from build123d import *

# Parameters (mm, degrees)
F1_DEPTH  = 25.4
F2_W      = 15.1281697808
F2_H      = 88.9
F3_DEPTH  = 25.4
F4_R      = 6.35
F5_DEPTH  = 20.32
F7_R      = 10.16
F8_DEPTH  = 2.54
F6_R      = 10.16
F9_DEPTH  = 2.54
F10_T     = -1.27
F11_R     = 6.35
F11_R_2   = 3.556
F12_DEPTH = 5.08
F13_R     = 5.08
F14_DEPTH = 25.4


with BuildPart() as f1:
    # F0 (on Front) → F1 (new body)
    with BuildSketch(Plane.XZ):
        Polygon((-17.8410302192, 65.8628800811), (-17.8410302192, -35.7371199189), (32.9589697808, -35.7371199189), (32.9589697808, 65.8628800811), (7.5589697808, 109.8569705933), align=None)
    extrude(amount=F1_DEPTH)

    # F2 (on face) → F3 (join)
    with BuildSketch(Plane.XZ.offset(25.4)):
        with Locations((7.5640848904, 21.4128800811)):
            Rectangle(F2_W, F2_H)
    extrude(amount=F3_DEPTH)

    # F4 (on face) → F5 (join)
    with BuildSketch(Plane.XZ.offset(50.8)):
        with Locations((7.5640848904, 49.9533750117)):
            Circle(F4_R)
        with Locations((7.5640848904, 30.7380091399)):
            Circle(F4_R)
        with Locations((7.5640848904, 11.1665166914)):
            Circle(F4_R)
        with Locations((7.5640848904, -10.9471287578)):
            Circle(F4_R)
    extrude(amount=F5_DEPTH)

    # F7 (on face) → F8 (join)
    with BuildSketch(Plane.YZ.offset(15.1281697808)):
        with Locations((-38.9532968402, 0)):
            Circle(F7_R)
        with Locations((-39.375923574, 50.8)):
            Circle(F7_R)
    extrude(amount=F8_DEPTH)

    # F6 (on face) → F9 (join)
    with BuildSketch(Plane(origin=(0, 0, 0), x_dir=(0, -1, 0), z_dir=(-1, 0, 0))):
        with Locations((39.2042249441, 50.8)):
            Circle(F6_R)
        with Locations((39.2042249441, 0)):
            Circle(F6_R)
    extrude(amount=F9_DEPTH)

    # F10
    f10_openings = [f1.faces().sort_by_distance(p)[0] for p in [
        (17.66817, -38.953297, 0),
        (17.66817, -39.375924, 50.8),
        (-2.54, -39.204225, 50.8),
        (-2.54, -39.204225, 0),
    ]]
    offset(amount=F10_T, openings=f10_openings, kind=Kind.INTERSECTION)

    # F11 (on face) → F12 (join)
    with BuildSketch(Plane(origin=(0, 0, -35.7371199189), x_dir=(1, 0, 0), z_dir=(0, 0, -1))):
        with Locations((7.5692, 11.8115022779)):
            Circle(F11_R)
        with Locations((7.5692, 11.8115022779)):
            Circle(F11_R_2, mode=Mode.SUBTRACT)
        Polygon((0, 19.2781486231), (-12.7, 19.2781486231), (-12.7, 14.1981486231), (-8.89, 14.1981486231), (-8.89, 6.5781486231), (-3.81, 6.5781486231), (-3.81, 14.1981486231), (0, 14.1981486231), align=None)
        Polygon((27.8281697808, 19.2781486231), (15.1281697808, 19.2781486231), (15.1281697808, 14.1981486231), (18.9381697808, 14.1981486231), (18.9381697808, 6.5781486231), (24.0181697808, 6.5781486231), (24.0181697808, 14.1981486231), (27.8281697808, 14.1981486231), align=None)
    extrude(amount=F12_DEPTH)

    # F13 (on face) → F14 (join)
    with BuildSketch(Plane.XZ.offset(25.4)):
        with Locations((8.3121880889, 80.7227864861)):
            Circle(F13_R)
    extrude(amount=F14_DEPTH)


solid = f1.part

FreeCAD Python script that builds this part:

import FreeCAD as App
import Part
import Sketcher

V = App.Vector
Q = App.Units.Quantity


def faces_at(feature, points):
    """Names of the faces that lie closest to the given points."""
    faces = feature.Shape.Faces
    near = lambda p: min(range(len(faces)), key=lambda i: faces[i].distToShape(Part.Vertex(*p))[0])
    return sorted({f"Face{near(p) + 1}" for p in points})


def add_polygon(sketch, points):
    """Adds a closed chain of lines whose ends are joined by coincident constraints."""
    first, n = sketch.GeometryCount, len(points)
    for a, b in zip(points, points[1:] + points[:1]):
        sketch.addGeometry(Part.LineSegment(App.Vector(*a, 0), App.Vector(*b, 0)), False)
    for i in range(n):
        sketch.addConstraint(Sketcher.Constraint("Coincident", first + i, 2, first + (i + 1) % n, 1))

doc = App.newDocument("Part")
body = doc.addObject("PartDesign::Body", "Body")

# Sketch on XZ plane
sketch1 = body.newObject("Sketcher::SketchObject", "Sketch")
sketch1.AttachmentSupport = (doc.getObject("XZ_Plane"), [""])
sketch1.MapMode = "FlatFace"
add_polygon(sketch1, [(-18, 66), (-18, -36), (33, -36), (33, 66), (8, 110)])  # lines 0-4
sketch1.addConstraint([
    Sketcher.Constraint("Vertical", 0),
    Sketcher.Constraint("Horizontal", 1),
    Sketcher.Constraint("Vertical", 2),
    Sketcher.Constraint("Horizontal", 2, 2, 4, 2),
    Sketcher.Constraint("Equal", 3, 4),
    Sketcher.Constraint("DistanceX", 1, 1, 1, 2, Q("2 in")),
    Sketcher.Constraint("DistanceY", 0, 2, 0, 1, Q("4 in")),
    Sketcher.Constraint("Distance", 3, Q("2 in")),
    Sketcher.Constraint("DistanceX", 0, 2, -1, 1, 17.84103),
    Sketcher.Constraint("DistanceY", 0, 2, -1, 1, 35.73712),
])
pad1 = body.newObject("PartDesign::Pad", "Pad")
pad1.Profile = sketch1
pad1.Length = Q("1 in")

# Sketch on XZ plane
sketch2 = body.newObject("Sketcher::SketchObject", "Sketch001")
sketch2.AttachmentSupport = (doc.getObject("XZ_Plane"), [""])
sketch2.MapMode = "FlatFace"
sketch2.AttachmentOffset = App.Placement(V(0, 0, 1 * 25.4), App.Rotation())
add_polygon(sketch2, [(0, 66), (0, -23), (15, -23), (15, 66)])  # lines 0-3
sketch2.addConstraint([
    Sketcher.Constraint("Vertical", 0),
    Sketcher.Constraint("Horizontal", 1),
    Sketcher.Constraint("Vertical", 2),
    Sketcher.Constraint("Horizontal", 3),
    Sketcher.Constraint("PointOnObject", 0, 2, -2),
    Sketcher.Constraint("DistanceY", 0, 2, 0, 1, Q("3.5 in")),
    Sketcher.Constraint("DistanceX", 1, 1, 1, 2, 15.12817),
    Sketcher.Constraint("DistanceY", 0, 2, -1, 1, 23.03712),
])
pad2 = body.newObject("PartDesign::Pad", "Pad001")
pad2.Profile = sketch2
pad2.Length = Q("1 in")

# Sketch on XZ plane
sketch3 = body.newObject("Sketcher::SketchObject", "Sketch002")
sketch3.AttachmentSupport = (doc.getObject("XZ_Plane"), [""])
sketch3.MapMode = "FlatFace"
sketch3.AttachmentOffset = App.Placement(V(0, 0, 2 * 25.4), App.Rotation())
sketch3.addGeometry([
    Part.Circle(V(8, 50, 0), V(0, 0, 1), 6),
    Part.Circle(V(8, 31, 0), V(0, 0, 1), 6),
    Part.Circle(V(8, 11, 0), V(0, 0, 1), 6),
    Part.Circle(V(8, -11, 0), V(0, 0, 1), 6),
], False)
sketch3.addConstraint([
    Sketcher.Constraint("Equal", 0, 1),
    Sketcher.Constraint("Equal", 1, 2),
    Sketcher.Constraint("Equal", 2, 3),
    Sketcher.Constraint("Vertical", 0, 3, 1, 3),
    Sketcher.Constraint("Vertical", 1, 3, 2, 3),
    Sketcher.Constraint("Vertical", 2, 3, 3, 3),
    Sketcher.Constraint("Diameter", 0, Q("0.5 in")),
    Sketcher.Constraint("DistanceY", -1, 1, 1, 3, 30.738009),
    Sketcher.Constraint("DistanceY", 3, 3, -1, 1, 10.947129),
    Sketcher.Constraint("DistanceY", 2, 3, 0, 3, 38.786858),
    Sketcher.Constraint("DistanceX", -1, 1, 0, 3, 7.564085),
    Sketcher.Constraint("DistanceY", -1, 1, 0, 3, 49.953375),
])
pad3 = body.newObject("PartDesign::Pad", "Pad002")
pad3.Profile = sketch3
pad3.Length = Q("0.8 in")

# Sketch on YZ plane
sketch4 = body.newObject("Sketcher::SketchObject", "Sketch003")
sketch4.AttachmentSupport = (doc.getObject("YZ_Plane"), [""])
sketch4.MapMode = "FlatFace"
sketch4.AttachmentOffset = App.Placement(V(0, 0, 15.12817), App.Rotation())
sketch4.addGeometry([
    Part.Circle(V(-39, 0, 0), V(0, 0, 1), 10),
    Part.Circle(V(-39, 51, 0), V(0, 0, 1), 10),
], False)
sketch4.addConstraint([
    Sketcher.Constraint("Equal", 0, 1),
    Sketcher.Constraint("PointOnObject", 0, 3, -1),
    Sketcher.Constraint("Diameter", 0, Q("0.8 in")),
    Sketcher.Constraint("DistanceY", -1, 1, 1, 3, Q("2 in")),
    Sketcher.Constraint("DistanceX", 0, 3, -1, 1, 38.953297),
    Sketcher.Constraint("DistanceX", 1, 3, -1, 1, 39.375924),
])
pad4 = body.newObject("PartDesign::Pad", "Pad003")
pad4.Profile = sketch4
pad4.Length = Q("0.1 in")

# Sketch on YZ plane
sketch5 = body.newObject("Sketcher::SketchObject", "Sketch004")
sketch5.AttachmentSupport = (doc.getObject("YZ_Plane"), [""])
sketch5.MapMode = "FlatFace"
sketch5.addGeometry([
    Part.Circle(V(-39, 51, 0), V(0, 0, 1), 10),
    Part.Circle(V(-39, 0, 0), V(0, 0, 1), 10),
], False)
sketch5.addConstraint([
    Sketcher.Constraint("Equal", 0, 1),
    Sketcher.Constraint("PointOnObject", 1, 3, -1),
    Sketcher.Constraint("Vertical", 0, 3, 1, 3),
    Sketcher.Constraint("Diameter", 0, Q("0.8 in")),
    Sketcher.Constraint("DistanceY", -1, 1, 0, 3, Q("2 in")),
    Sketcher.Constraint("DistanceX", 0, 3, -1, 1, 39.204225),
])
pad5 = body.newObject("PartDesign::Pad", "Pad004")
pad5.Profile = sketch5
pad5.Length = Q("0.1 in")
pad5.Reversed = True
doc.recompute()

thickness = body.newObject("PartDesign::Thickness", "Thickness")
thickness.Base = (pad5, faces_at(pad5, [
    (17.668, -38.953, 0),
    (17.668, -39.376, 50.8),
    (-2.54, -39.204, 50.8),
    (-2.54, -39.204, 0),
]))
thickness.Value = Q("0.05 in")
thickness.Reversed = True
thickness.Join = "Intersection"

# Sketch on XY plane
sketch6 = body.newObject("Sketcher::SketchObject", "Sketch005")
sketch6.AttachmentSupport = (doc.getObject("XY_Plane"), [""])
sketch6.MapMode = "FlatFace"
sketch6.AttachmentOffset = App.Placement(V(0, 0, -35.73712), App.Rotation())
sketch6.addGeometry(Part.Circle(V(7.6, -11.8, 0), V(0, 0, 1), 6.3), False)  # 0
sketch6.addGeometry(Part.Circle(V(7.6, -11.8, 0), V(0, 0, 1), 3.6), False)  # 1
add_polygon(sketch6, [(0, -19.3), (-12.7, -19.3), (-12.7, -14.2), (-8.9, -14.2), (-8.9, -6.6), (-3.8, -6.6), (-3.8, -14.2), (0, -14.2)])  # lines 2-9
add_polygon(sketch6, [(27.8, -19.3), (15.1, -19.3), (15.1, -14.2), (18.9, -14.2), (18.9, -6.6), (24, -6.6), (24, -14.2), (27.8, -14.2)])  # lines 10-17
sketch6.addConstraint([
    Sketcher.Constraint("Horizontal", 2),
    Sketcher.Constraint("Vertical", 3),
    Sketcher.Constraint("Horizontal", 4),
    Sketcher.Constraint("Vertical", 5),
    Sketcher.Constraint("Horizontal", 6),
    Sketcher.Constraint("Vertical", 7),
    Sketcher.Constraint("Horizontal", 8),
    Sketcher.Constraint("Vertical", 9),
    Sketcher.Constraint("Horizontal", 10),
    Sketcher.Constraint("Vertical", 11),
    Sketcher.Constraint("Horizontal", 12),
    Sketcher.Constraint("Vertical", 13),
    Sketcher.Constraint("Horizontal", 14),
    Sketcher.Constraint("Vertical", 15),
    Sketcher.Constraint("Horizontal", 16),
    Sketcher.Constraint("Vertical", 17),
    Sketcher.Constraint("Coincident", 1, 3, 0, 3),
    Sketcher.Constraint("PointOnObject", 8, 2, -2),
    Sketcher.Constraint("Horizontal", 4, 2, 7, 2),
    Sketcher.Constraint("Horizontal", 9, 2, 10, 2),
    Sketcher.Constraint("Horizontal", 8, 2, 11, 2),
    Sketcher.Constraint("Horizontal", 6, 2, 13, 2),
    Sketcher.Constraint("Horizontal", 12, 2, 15, 2),
    Sketcher.Constraint("Equal", 4, 8),
    Sketcher.Constraint("Equal", 2, 10),
    Sketcher.Constraint("Equal", 8, 12),
    Sketcher.Constraint("Equal", 6, 14),
    Sketcher.Constraint("Equal", 14, 3),
    Sketcher.Constraint("Diameter", 0, Q("0.5 in")),
    Sketcher.Constraint("Diameter", 1, Q("0.28 in")),
    Sketcher.Constraint("DistanceX", 2, 2, 2, 1, Q("0.5 in")),
    Sketcher.Constraint("DistanceX", 6, 1, 6, 2, Q("0.2 in")),
    Sketcher.Constraint("DistanceY", 5, 1, 5, 2, Q("0.3 in")),
    Sketcher.Constraint("DistanceX", -1, 1, 0, 3, Q("0.298 in")),
    Sketcher.Constraint("DistanceY", 2, 2, -1, 1, 19.278149),
    Sketcher.Constraint("DistanceX", -1, 1, 10, 2, 15.12817),
    Sketcher.Constraint("DistanceY", 0, 3, -1, 1, 11.811502),
])
pad6 = body.newObject("PartDesign::Pad", "Pad005")
pad6.Profile = sketch6
pad6.Length = Q("0.2 in")
pad6.Reversed = True

# Sketch on XZ plane
sketch7 = body.newObject("Sketcher::SketchObject", "Sketch006")
sketch7.AttachmentSupport = (doc.getObject("XZ_Plane"), [""])
sketch7.MapMode = "FlatFace"
sketch7.AttachmentOffset = App.Placement(V(0, 0, 1 * 25.4), App.Rotation())
sketch7.addGeometry(Part.Circle(V(8, 81, 0), V(0, 0, 1), 5), False)
sketch7.addConstraint([
    Sketcher.Constraint("Diameter", 0, Q("0.4 in")),
    Sketcher.Constraint("DistanceX", -1, 1, 0, 3, 8.312188),
    Sketcher.Constraint("DistanceY", -1, 1, 0, 3, 80.722786),
])
pad7 = body.newObject("PartDesign::Pad", "Pad006")
pad7.Profile = sketch7
pad7.Length = Q("1 in")

doc.recompute()
